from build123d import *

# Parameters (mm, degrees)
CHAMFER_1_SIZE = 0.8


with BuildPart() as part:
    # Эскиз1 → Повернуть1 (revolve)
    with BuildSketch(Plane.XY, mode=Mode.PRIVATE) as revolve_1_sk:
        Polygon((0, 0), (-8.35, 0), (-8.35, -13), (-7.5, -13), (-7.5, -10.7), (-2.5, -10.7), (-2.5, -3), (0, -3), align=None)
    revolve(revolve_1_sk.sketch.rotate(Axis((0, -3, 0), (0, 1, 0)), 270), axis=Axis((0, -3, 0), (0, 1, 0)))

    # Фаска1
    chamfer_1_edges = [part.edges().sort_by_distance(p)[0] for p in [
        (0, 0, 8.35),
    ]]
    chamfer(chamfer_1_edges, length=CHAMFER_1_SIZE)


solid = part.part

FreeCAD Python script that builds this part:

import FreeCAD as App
import Part
import Sketcher


def edges_at(feature, points):
    """Names of the edges that pass closest to the given points."""
    edges = feature.Shape.Edges
    near = lambda p: min(range(len(edges)), key=lambda i: edges[i].distToShape(Part.Vertex(*p))[0])
    return sorted({f"Edge{near(p) + 1}" for p in points})


def add_polygon(sketch, points):
    """Adds a closed chain of lines whose ends are joined by coincident constraints."""
    first, n = sketch.GeometryCount, len(points)
    for a, b in zip(points, points[1:] + points[:1]):
        sketch.addGeometry(Part.LineSegment(App.Vector(*a, 0), App.Vector(*b, 0)), False)
    for i in range(n):
        sketch.addConstraint(Sketcher.Constraint("Coincident", first + i, 2, first + (i + 1) % n, 1))

doc = App.newDocument("Part")
body = doc.addObject("PartDesign::Body", "Body")

sketch1 = body.newObject("Sketcher::SketchObject", "Sketch")
sketch1.AttachmentSupport = (doc.getObject("XY_Plane"), [""])
sketch1.MapMode = "FlatFace"
add_polygon(sketch1, [(0, 0), (-8.35, 0), (-8.35, -13), (-7.5, -13), (-7.5, -10.7), (-2.5, -10.7), (-2.5, -3), (0, -3)])
sketch1.addConstraint([
    Sketcher.Constraint("Horizontal", 0),
    Sketcher.Constraint("Vertical", 1),
    Sketcher.Constraint("Horizontal", 2),
    Sketcher.Constraint("Vertical", 3),
    Sketcher.Constraint("Horizontal", 4),
    Sketcher.Constraint("Vertical", 5),
    Sketcher.Constraint("Horizontal", 6),
    Sketcher.Constraint("Vertical", 7),
    Sketcher.Constraint("Coincident", 7, 2, -1, 1),
    Sketcher.Constraint("DistanceX", 4, 1, 4, 2, 5.0),
    Sketcher.Constraint("DistanceY", 1, 2, 1, 1, 13.0),
    Sketcher.Constraint("DistanceY", 7, 1, 7, 2, 3.0),
    Sketcher.Constraint("DistanceX", 6, 1, 6, 2, 2.5),
    Sketcher.Constraint("DistanceY", 3, 1, 3, 2, 2.3),
    Sketcher.Constraint("DistanceX", 0, 2, 0, 1, 8.35),
])
revolution = body.newObject("PartDesign::Revolution", "Revolution")
revolution.Profile = sketch1
revolution.ReferenceAxis = (sketch1, ["V_Axis"])
revolution.Angle = 360
doc.recompute()

chamfer = body.newObject("PartDesign::Chamfer", "Chamfer")
chamfer.Base = (revolution, edges_at(revolution, [(0, 0, 8.35)]))
chamfer.Size = 0.8

doc.recompute()
